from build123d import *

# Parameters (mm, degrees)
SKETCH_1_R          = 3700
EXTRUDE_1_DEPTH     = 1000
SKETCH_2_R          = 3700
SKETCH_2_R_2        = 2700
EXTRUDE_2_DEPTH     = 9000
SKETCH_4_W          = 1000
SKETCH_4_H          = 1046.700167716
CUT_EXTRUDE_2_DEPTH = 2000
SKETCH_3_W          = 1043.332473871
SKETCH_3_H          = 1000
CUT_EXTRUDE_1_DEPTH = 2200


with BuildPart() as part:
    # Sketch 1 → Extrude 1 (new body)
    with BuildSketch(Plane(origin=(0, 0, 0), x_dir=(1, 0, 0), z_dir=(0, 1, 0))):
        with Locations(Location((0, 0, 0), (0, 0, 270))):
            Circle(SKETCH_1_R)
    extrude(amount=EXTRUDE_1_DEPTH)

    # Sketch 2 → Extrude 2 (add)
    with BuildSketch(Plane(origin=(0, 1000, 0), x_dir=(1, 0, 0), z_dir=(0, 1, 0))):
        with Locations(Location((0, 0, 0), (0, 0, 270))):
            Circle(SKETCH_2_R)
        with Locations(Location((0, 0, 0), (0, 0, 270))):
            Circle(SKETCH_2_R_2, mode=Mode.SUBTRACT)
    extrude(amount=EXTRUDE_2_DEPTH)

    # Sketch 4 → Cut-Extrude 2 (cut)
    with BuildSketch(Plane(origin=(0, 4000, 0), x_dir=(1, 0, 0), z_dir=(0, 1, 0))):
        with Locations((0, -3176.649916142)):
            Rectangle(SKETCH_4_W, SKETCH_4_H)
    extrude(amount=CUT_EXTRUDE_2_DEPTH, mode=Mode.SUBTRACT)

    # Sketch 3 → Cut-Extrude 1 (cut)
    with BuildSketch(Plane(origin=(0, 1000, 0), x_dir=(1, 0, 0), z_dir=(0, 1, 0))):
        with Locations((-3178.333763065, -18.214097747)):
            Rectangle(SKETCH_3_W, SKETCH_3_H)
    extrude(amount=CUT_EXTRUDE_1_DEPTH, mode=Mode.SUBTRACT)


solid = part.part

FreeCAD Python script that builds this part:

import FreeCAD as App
import Part
import Sketcher
Q = App.Units.Quantity

doc = App.newDocument("Part")
body = doc.addObject("PartDesign::Body", "Body")

sketch1 = body.newObject("Sketcher::SketchObject", "Sketch")
sketch1.AttachmentSupport = (doc.getObject("XZ_Plane"), [""])
sketch1.MapMode = "FlatFace"
sketch1.addGeometry(Part.Circle(App.Vector(0, 0, 0), App.Vector(0, 0, 1), 3700), False)
sketch1.addConstraint(Sketcher.Constraint("Coincident", 0, 3, -1, 1))
sketch1.addConstraint(Sketcher.Constraint("Diameter", 0, Q("7400 mm")))
pad1 = body.newObject("PartDesign::Pad", "Pad")
pad1.Profile = sketch1
pad1.Length = 1000
pad1.Reversed = True

sketch2 = body.newObject("Sketcher::SketchObject", "Sketch001")
sketch2.AttachmentSupport = (doc.getObject("XZ_Plane"), [""])
sketch2.MapMode = "FlatFace"
sketch2.AttachmentOffset = App.Placement(App.Vector(0, 0, -1000), App.Rotation())
sketch2.addGeometry(Part.Circle(App.Vector(0, 0, 0), App.Vector(0, 0, 1), 3700), False)
sketch2.addGeometry(Part.Circle(App.Vector(0, 0, 0), App.Vector(0, 0, 1), 2700), False)
sketch2.addConstraint(Sketcher.Constraint("Coincident", 0, 3, -1, 1))
sketch2.addConstraint(Sketcher.Constraint("Coincident", 1, 3, -1, 1))
sketch2.addConstraint(Sketcher.Constraint("Diameter", 0, Q("7400 mm")))
sketch2.addConstraint(Sketcher.Constraint("Diameter", 1, Q("5400 mm")))
pad2 = body.newObject("PartDesign::Pad", "Pad001")
pad2.Profile = sketch2
pad2.Length = 9000
pad2.Reversed = True

sketch3 = body.newObject("Sketcher::SketchObject", "Sketch002")
sketch3.AttachmentSupport = (doc.getObject("XZ_Plane"), [""])
sketch3.MapMode = "FlatFace"
sketch3.AttachmentOffset = App.Placement(App.Vector(0, 0, -4000), App.Rotation())
sketch3.addGeometry(Part.LineSegment(App.Vector(-500, 2653, 0), App.Vector(-500, 3700, 0)), False)
sketch3.addGeometry(Part.LineSegment(App.Vector(-500, 3700, 0), App.Vector(500, 3700, 0)), False)
sketch3.addGeometry(Part.LineSegment(App.Vector(500, 3700, 0), App.Vector(500, 2653, 0)), False)
sketch3.addGeometry(Part.LineSegment(App.Vector(500, 2653, 0), App.Vector(-500, 2653, 0)), False)
sketch3.addConstraint(Sketcher.Constraint("Coincident", 0, 2, 1, 1))
sketch3.addConstraint(Sketcher.Constraint("Coincident", 1, 2, 2, 1))
sketch3.addConstraint(Sketcher.Constraint("Coincident", 2, 2, 3, 1))
sketch3.addConstraint(Sketcher.Constraint("Coincident", 3, 2, 0, 1))
sketch3.addConstraint(Sketcher.Constraint("Vertical", 0))
sketch3.addConstraint(Sketcher.Constraint("Horizontal", 1))
sketch3.addConstraint(Sketcher.Constraint("Vertical", 2))
sketch3.addConstraint(Sketcher.Constraint("Horizontal", 3))
sketch3.addConstraint(Sketcher.Constraint("DistanceX", 1, 1, 1, 2, Q("1000 mm")))
sketch3.addConstraint(Sketcher.Constraint("DistanceX", 0, 2, -1, 1, Q("500 mm")))
sketch3.addConstraint(Sketcher.Constraint("DistanceY", -1, 1, 0, 2, Q("3700 mm")))
sketch3.addConstraint(Sketcher.Constraint("DistanceY", 0, 1, 0, 2, Q("1046.700168 mm")))
pocket1 = body.newObject("PartDesign::Pocket", "Pocket")
pocket1.Profile = sketch3
pocket1.Length = 2000

sketch4 = body.newObject("Sketcher::SketchObject", "Sketch003")
sketch4.AttachmentSupport = (doc.getObject("XZ_Plane"), [""])
sketch4.MapMode = "FlatFace"
sketch4.AttachmentOffset = App.Placement(App.Vector(0, 0, -1000), App.Rotation())
sketch4.addGeometry(Part.LineSegment(App.Vector(-3700, -482, 0), App.Vector(-3700, 518, 0)), False)
sketch4.addGeometry(Part.LineSegment(App.Vector(-3700, 518, 0), App.Vector(-2657, 518, 0)), False)
sketch4.addGeometry(Part.LineSegment(App.Vector(-2657, 518, 0), App.Vector(-2657, -482, 0)), False)
sketch4.addGeometry(Part.LineSegment(App.Vector(-2657, -482, 0), App.Vector(-3700, -482, 0)), False)
sketch4.addConstraint(Sketcher.Constraint("Coincident", 0, 2, 1, 1))
sketch4.addConstraint(Sketcher.Constraint("Coincident", 1, 2, 2, 1))
sketch4.addConstraint(Sketcher.Constraint("Coincident", 2, 2, 3, 1))
sketch4.addConstraint(Sketcher.Constraint("Coincident", 3, 2, 0, 1))
sketch4.addConstraint(Sketcher.Constraint("Vertical", 0))
sketch4.addConstraint(Sketcher.Constraint("Horizontal", 1))
sketch4.addConstraint(Sketcher.Constraint("Vertical", 2))
sketch4.addConstraint(Sketcher.Constraint("Horizontal", 3))
sketch4.addConstraint(Sketcher.Constraint("DistanceY", 0, 1, 0, 2, Q("1000 mm")))
sketch4.addConstraint(Sketcher.Constraint("DistanceX", 0, 2, -1, 1, Q("3700 mm")))
sketch4.addConstraint(Sketcher.Constraint("DistanceX", 1, 1, 1, 2, Q("1043.332474 mm")))
sketch4.addConstraint(Sketcher.Constraint("DistanceY", -1, 1, 0, 2, Q("518.214098 mm")))
pocket2 = body.newObject("PartDesign::Pocket", "Pocket001")
pocket2.Profile = sketch4
pocket2.Length = 2200

doc.recompute()
